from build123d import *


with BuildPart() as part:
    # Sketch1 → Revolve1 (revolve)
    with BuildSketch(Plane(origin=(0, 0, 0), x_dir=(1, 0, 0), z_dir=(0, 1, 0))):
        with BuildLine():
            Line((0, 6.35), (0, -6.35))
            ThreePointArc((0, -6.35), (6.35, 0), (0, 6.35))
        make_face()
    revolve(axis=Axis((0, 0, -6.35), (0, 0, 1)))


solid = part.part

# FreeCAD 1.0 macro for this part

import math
import FreeCAD as App
import Part
import Sketcher
Q = App.Units.Quantity

doc = App.newDocument("Part")
body = doc.addObject("PartDesign::Body", "Body")

# Sketch on XZ plane
sketch1 = body.newObject("Sketcher::SketchObject", "Sketch")
sketch1.AttachmentSupport = (doc.getObject("XZ_Plane"), [""])
sketch1.MapMode = "FlatFace"
sketch1.addGeometry([
    Part.LineSegment(App.Vector(0, -6, 0), App.Vector(0, 6, 0)),
    Part.ArcOfCircle(Part.Circle(App.Vector(0, 0, 0), App.Vector(0, 0, 1), 6), math.radians(-90), math.radians(90)),
], False)
sketch1.addConstraint([
    Sketcher.Constraint("Coincident", 0, 1, 1, 1),
    Sketcher.Constraint("Coincident", 1, 2, 0, 2),
    Sketcher.Constraint("Vertical", 0),
    Sketcher.Constraint("Coincident", 1, 3, -1, 1),
    Sketcher.Constraint("PointOnObject", 0, 1, -2),
    Sketcher.Constraint("Radius", 1, Q("0.25 in")),
])
revolution = body.newObject("PartDesign::Revolution", "Revolution")
revolution.Profile = sketch1
revolution.ReferenceAxis = (sketch1, ["V_Axis"])
revolution.Angle = 360

doc.recompute()
